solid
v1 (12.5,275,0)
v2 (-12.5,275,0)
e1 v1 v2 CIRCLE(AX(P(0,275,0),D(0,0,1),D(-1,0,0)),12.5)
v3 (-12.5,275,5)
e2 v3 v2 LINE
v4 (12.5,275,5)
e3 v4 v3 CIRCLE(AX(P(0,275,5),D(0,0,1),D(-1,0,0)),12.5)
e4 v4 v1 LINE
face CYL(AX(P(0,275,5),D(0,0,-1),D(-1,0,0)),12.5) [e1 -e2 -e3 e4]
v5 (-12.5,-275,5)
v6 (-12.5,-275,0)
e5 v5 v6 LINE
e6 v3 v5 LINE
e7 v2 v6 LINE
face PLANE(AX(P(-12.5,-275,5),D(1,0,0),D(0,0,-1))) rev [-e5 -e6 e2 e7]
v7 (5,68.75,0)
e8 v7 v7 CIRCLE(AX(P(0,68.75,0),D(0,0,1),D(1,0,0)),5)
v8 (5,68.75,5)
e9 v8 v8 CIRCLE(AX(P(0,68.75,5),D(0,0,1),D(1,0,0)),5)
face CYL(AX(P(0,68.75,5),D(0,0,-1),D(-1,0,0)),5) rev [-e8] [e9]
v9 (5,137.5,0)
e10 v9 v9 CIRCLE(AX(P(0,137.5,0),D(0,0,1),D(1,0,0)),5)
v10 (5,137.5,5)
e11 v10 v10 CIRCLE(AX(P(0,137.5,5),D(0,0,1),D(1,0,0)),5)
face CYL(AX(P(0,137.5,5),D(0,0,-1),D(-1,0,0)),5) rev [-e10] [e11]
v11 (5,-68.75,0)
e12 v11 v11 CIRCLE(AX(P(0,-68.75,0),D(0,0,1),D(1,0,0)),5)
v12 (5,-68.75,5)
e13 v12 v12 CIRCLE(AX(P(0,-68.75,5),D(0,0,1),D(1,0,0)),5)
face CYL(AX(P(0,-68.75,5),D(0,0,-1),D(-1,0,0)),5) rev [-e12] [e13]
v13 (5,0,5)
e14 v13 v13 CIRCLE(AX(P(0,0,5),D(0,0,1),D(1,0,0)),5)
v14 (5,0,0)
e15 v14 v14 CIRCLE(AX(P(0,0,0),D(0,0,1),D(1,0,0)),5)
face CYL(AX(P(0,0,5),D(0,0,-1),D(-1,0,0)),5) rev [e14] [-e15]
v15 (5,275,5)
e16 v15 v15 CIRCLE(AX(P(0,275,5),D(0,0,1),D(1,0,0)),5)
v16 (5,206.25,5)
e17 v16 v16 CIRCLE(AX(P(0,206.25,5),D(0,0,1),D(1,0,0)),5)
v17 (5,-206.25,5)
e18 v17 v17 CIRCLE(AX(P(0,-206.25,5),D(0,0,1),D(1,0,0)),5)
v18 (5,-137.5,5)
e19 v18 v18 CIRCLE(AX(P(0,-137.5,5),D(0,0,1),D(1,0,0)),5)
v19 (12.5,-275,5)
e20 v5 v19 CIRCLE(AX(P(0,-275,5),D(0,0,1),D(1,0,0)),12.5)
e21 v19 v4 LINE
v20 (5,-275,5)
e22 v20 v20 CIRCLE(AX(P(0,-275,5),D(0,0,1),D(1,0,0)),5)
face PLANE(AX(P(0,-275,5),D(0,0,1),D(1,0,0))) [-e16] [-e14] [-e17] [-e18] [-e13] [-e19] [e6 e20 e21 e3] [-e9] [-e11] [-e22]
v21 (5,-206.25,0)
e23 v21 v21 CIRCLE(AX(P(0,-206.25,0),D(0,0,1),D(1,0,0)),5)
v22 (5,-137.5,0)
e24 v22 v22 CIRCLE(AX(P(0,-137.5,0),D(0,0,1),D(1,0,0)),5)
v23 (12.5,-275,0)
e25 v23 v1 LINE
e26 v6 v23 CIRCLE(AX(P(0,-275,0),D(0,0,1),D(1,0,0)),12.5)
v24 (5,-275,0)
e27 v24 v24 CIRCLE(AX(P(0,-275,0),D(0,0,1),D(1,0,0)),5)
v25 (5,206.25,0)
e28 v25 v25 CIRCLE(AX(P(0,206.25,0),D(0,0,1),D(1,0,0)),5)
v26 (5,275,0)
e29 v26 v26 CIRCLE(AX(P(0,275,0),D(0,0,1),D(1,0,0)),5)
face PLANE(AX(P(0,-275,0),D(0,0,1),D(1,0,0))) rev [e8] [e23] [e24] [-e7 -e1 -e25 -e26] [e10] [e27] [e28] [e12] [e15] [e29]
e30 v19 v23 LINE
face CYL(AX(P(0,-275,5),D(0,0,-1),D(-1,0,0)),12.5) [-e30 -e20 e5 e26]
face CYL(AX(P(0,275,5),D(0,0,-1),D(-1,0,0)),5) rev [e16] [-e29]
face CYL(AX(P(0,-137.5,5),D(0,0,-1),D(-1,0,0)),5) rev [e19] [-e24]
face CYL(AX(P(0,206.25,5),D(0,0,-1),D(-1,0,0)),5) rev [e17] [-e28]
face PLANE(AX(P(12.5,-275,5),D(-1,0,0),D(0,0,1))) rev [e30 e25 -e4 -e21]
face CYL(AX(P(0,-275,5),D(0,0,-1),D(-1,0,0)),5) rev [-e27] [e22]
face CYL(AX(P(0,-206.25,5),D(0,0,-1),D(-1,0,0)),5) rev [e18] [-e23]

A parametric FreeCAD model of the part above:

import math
import FreeCAD as App
import Part
import Sketcher

V = App.Vector

doc = App.newDocument("Part")
params = doc.addObject("Spreadsheet::Sheet", "Params")
for row, (alias, value) in enumerate([
    ("sketch1_diameter", "10 mm"),
    ("sketch1_radius", "12.5 mm"),
    ("sketch1_height", "550 mm"),
    ("pad1_length", "5 mm"),
], start=1):
    params.set(f"A{row}", alias)
    params.set(f"B{row}", "=" + value)
    params.setAlias(f"B{row}", alias)

body = doc.addObject("PartDesign::Body", "Body")

# Sketch on XY plane
sketch1 = doc.addObject("Sketcher::SketchObject", "Sketch")
body.addObject(sketch1)
sketch1.AttachmentSupport = (doc.XY_Plane, [""])
sketch1.MapMode = "FlatFace"
sketch1.addGeometry(Part.LineSegment(V(-12, 275, 0), V(-12, -275, 0)), False)
sketch1.addGeometry(Part.ArcOfCircle(Part.Circle(V(0, -275, 0), V(0, 0, 1), 12), math.radians(180), math.radians(360)), False)
sketch1.addGeometry(Part.LineSegment(V(12, -275, 0), V(12, 275, 0)), False)
sketch1.addGeometry(Part.ArcOfCircle(Part.Circle(V(0, 275, 0), V(0, 0, 1), 12), math.radians(0), math.radians(180)), False)
sketch1.addGeometry(Part.Circle(V(0, 275, 0), V(0, 0, 1), 5), False)
sketch1.addGeometry(Part.Circle(V(0, 206, 0), V(0, 0, 1), 5), False)
sketch1.addGeometry(Part.Circle(V(0, 138, 0), V(0, 0, 1), 5), False)
sketch1.addGeometry(Part.Circle(V(0, 69, 0), V(0, 0, 1), 5), False)
sketch1.addGeometry(Part.Circle(V(0, 0, 0), V(0, 0, 1), 5), False)
sketch1.addGeometry(Part.Circle(V(0, -69, 0), V(0, 0, 1), 5), False)
sketch1.addGeometry(Part.Circle(V(0, -138, 0), V(0, 0, 1), 5), False)
sketch1.addGeometry(Part.Circle(V(0, -206, 0), V(0, 0, 1), 5), False)
sketch1.addGeometry(Part.Circle(V(0, -275, 0), V(0, 0, 1), 5), False)
sketch1.addConstraint(Sketcher.Constraint("Tangent", 0, 2, 1, 1))
sketch1.addConstraint(Sketcher.Constraint("Tangent", 1, 2, 2, 1))
sketch1.addConstraint(Sketcher.Constraint("Tangent", 2, 2, 3, 1))
sketch1.addConstraint(Sketcher.Constraint("Tangent", 3, 2, 0, 1))
sketch1.addConstraint(Sketcher.Constraint("Vertical", 0))
sketch1.addConstraint(Sketcher.Constraint("Vertical", 2))
sketch1.addConstraint(Sketcher.Constraint("Coincident", 8, 3, -1, 1))
sketch1.addConstraint(Sketcher.Constraint("Coincident", 4, 3, 3, 3))
sketch1.addConstraint(Sketcher.Constraint("Coincident", 12, 3, 1, 3))
sketch1.addConstraint(Sketcher.Constraint("Equal", 4, 5))
sketch1.addConstraint(Sketcher.Constraint("Equal", 5, 6))
sketch1.addConstraint(Sketcher.Constraint("Equal", 6, 7))
sketch1.addConstraint(Sketcher.Constraint("Equal", 7, 8))
sketch1.addConstraint(Sketcher.Constraint("Equal", 8, 9))
sketch1.addConstraint(Sketcher.Constraint("Equal", 9, 10))
sketch1.addConstraint(Sketcher.Constraint("Equal", 10, 11))
sketch1.addConstraint(Sketcher.Constraint("Equal", 11, 12))
sketch1.addConstraint(Sketcher.Constraint("Symmetric", 1, 3, 3, 3, -1, 1))
sketch1.addConstraint(Sketcher.Constraint("Symmetric", 7, 3, 9, 3, -1, 1))
sketch1.addConstraint(Sketcher.Constraint("Symmetric", 6, 3, 10, 3, -1, 1))
sketch1.addConstraint(Sketcher.Constraint("Symmetric", 5, 3, 11, 3, -1, 1))
sketch1.addConstraint(Sketcher.Constraint("PointOnObject", 5, 3, -2))
sketch1.addConstraint(Sketcher.Constraint("PointOnObject", 6, 3, -2))
sketch1.addConstraint(Sketcher.Constraint("PointOnObject", 7, 3, -2))
sketch1.addConstraint(Sketcher.Constraint("Diameter", 4, 10.0))
sketch1.addConstraint(Sketcher.Constraint("Radius", 1, 12.5))
sketch1.addConstraint(Sketcher.Constraint("DistanceY", 0, 2, 0, 1, 550.0))
sketch1.addConstraint(Sketcher.Constraint("DistanceY", 9, 3, 5, 3, 275.0))
sketch1.addConstraint(Sketcher.Constraint("DistanceY", 10, 3, 6, 3, 275.0))
sketch1.addConstraint(Sketcher.Constraint("DistanceY", 7, 3, 5, 3, 137.5))
sketch1.setExpression("Constraints[24]", "Params.sketch1_diameter")
sketch1.setExpression("Constraints[25]", "Params.sketch1_radius")
sketch1.setExpression("Constraints[26]", "Params.sketch1_height")
pad1 = doc.addObject("PartDesign::Pad", "Pad")
body.addObject(pad1)
pad1.Profile = sketch1
pad1.setExpression("Length", "Params.pad1_length")

doc.recompute()
